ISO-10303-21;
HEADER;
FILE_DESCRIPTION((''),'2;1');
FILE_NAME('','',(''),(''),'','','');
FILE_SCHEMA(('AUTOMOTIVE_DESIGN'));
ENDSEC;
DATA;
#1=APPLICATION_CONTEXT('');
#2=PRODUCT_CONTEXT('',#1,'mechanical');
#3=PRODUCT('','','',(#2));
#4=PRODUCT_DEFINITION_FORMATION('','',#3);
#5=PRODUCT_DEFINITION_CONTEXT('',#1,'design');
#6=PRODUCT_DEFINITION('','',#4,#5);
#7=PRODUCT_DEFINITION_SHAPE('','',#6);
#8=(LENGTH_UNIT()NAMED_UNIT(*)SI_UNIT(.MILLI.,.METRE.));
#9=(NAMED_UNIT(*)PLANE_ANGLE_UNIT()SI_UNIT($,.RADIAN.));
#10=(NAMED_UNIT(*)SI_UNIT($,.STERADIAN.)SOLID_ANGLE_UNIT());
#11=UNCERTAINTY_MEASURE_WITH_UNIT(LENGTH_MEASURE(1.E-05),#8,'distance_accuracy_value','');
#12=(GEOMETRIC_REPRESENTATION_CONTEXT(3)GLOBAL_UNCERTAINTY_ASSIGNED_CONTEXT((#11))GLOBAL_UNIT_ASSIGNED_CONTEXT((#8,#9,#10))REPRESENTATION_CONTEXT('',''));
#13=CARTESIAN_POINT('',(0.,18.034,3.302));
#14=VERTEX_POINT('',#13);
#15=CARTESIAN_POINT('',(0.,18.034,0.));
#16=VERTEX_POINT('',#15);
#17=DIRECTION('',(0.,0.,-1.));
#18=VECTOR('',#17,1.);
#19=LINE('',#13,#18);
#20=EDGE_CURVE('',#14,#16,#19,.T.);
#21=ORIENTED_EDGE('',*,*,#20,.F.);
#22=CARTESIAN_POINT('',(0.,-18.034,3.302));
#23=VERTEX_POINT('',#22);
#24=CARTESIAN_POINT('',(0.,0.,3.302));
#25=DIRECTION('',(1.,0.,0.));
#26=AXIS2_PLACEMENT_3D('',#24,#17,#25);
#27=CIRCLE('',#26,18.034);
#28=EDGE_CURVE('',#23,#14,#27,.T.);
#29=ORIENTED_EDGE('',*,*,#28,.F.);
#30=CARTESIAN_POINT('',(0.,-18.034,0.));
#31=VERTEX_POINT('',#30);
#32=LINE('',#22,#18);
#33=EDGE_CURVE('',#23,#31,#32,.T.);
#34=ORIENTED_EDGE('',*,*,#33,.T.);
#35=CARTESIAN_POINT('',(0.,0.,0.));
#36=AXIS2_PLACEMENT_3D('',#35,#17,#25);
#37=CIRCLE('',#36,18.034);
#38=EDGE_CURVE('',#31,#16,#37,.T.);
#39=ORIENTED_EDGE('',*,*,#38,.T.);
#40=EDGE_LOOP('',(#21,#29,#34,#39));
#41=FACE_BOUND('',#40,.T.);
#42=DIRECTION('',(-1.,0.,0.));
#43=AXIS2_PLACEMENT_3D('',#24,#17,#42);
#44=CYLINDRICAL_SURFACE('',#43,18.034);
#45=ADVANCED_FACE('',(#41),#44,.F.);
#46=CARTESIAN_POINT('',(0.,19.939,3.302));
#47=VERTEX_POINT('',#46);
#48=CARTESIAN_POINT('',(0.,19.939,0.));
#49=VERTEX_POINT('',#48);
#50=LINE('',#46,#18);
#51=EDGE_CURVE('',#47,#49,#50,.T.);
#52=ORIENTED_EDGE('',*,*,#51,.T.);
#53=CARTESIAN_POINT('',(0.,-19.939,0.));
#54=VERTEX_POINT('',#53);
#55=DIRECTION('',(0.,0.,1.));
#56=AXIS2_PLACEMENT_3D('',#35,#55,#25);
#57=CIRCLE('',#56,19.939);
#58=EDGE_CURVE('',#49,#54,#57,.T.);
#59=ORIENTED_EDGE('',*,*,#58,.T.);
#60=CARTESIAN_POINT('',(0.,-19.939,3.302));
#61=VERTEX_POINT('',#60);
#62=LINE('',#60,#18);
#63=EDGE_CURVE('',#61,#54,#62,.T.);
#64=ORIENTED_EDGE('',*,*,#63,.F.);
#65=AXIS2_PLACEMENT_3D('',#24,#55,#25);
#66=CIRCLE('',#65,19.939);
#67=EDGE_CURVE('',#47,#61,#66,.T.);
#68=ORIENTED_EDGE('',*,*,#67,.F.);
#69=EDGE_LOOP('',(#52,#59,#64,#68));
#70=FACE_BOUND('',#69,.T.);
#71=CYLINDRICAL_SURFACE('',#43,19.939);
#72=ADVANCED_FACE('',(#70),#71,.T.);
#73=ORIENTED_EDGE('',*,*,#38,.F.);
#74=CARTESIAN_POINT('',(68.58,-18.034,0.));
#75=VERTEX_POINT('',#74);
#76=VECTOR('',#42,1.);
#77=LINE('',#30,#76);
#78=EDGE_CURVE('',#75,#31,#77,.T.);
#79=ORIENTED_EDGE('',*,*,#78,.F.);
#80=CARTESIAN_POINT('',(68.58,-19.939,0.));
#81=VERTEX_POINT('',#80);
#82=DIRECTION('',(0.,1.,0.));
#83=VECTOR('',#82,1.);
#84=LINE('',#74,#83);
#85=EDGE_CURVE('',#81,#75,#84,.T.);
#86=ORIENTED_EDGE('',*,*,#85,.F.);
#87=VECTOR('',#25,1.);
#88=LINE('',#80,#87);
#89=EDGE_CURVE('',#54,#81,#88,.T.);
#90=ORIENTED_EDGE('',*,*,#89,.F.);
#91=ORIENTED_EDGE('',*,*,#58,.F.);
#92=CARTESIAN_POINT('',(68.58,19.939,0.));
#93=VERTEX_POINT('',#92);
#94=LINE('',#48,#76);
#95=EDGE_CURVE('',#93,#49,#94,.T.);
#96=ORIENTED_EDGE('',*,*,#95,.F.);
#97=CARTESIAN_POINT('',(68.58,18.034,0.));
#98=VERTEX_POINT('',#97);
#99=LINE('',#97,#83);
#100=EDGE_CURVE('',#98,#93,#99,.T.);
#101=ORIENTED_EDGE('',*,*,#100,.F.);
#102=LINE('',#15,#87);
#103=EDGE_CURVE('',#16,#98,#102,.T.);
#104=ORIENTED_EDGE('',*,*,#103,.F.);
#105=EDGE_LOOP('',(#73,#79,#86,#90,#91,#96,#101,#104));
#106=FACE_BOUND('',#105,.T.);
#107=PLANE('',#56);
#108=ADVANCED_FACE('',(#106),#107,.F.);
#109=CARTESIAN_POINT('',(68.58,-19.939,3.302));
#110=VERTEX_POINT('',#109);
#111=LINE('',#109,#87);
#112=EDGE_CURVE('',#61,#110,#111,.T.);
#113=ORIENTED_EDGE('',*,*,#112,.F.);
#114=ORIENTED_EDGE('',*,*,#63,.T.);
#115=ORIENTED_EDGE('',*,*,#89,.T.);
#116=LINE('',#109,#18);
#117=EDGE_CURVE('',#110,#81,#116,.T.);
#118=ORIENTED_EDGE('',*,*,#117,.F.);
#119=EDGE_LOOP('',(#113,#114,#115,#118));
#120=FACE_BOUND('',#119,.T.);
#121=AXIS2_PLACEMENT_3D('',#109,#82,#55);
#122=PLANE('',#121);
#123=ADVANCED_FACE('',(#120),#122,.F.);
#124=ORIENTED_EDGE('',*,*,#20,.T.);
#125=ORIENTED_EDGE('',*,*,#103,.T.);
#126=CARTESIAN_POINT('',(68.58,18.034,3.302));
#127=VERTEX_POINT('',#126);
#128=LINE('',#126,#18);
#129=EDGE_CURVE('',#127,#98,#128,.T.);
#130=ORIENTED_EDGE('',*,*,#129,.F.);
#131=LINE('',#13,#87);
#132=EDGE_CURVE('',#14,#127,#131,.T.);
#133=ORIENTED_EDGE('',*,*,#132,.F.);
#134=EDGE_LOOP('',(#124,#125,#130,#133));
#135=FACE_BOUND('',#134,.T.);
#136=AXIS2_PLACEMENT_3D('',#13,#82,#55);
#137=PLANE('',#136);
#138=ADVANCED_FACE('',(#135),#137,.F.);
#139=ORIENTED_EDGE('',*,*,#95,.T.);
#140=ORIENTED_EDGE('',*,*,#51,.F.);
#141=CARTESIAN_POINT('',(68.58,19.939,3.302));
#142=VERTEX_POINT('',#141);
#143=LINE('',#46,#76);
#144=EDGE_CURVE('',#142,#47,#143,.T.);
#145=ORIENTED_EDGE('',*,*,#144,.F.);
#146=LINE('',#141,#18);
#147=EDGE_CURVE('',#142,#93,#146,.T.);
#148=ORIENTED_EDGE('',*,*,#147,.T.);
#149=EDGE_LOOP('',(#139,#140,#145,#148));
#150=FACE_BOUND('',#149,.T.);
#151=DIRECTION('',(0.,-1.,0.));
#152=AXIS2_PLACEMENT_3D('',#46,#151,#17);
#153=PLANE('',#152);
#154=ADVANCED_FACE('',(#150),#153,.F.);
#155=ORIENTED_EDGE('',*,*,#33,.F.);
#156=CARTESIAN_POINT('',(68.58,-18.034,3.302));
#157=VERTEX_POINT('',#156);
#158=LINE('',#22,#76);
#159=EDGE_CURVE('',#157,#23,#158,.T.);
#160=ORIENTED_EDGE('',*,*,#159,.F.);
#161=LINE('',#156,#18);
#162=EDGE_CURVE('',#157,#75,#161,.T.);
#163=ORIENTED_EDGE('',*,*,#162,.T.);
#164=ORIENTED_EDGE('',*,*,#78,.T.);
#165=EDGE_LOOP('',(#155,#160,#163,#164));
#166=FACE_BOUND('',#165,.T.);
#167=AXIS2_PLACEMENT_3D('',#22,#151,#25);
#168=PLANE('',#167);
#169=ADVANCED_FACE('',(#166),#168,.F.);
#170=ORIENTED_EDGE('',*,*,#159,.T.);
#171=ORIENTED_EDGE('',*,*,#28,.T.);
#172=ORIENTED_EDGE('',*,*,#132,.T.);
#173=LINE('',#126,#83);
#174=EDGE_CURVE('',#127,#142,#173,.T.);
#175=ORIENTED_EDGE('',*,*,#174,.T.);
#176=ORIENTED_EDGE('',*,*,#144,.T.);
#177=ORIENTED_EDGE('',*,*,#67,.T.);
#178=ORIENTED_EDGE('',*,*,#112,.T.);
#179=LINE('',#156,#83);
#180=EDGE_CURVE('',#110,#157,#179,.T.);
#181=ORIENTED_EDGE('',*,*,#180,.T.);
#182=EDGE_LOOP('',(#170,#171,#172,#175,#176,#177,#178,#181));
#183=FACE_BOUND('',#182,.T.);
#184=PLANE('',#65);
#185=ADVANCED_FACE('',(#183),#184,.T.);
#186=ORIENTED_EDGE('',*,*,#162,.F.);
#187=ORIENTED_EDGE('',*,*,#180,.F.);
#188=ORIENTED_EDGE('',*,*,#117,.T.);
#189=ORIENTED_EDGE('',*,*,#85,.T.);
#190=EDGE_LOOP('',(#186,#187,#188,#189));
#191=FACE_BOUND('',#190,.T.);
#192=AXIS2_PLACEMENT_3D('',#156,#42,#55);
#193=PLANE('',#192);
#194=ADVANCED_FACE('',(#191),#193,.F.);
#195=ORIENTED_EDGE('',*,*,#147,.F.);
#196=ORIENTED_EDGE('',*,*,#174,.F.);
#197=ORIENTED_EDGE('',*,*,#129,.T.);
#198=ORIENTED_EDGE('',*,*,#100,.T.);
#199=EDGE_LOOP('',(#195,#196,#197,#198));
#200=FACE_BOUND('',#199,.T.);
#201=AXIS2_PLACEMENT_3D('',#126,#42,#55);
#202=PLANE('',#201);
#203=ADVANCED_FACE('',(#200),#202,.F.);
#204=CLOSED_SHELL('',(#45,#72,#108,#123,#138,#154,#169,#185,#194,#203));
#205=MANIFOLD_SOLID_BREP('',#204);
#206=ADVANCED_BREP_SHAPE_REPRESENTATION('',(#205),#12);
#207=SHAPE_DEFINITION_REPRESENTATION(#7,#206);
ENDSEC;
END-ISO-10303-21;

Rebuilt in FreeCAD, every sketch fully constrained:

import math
import FreeCAD as App
import Part
import Sketcher

V = App.Vector
Q = App.Units.Quantity

doc = App.newDocument("Part")
params = doc.addObject("Spreadsheet::Sheet", "Params")
for row, (alias, value) in enumerate([
    ("sketch1_radius", "0.71 in"),
    ("sketch1_width", "2.7 in"),
    ("sketch1_radius2", "0.785 in"),
    ("pad1_length", "0.13 in"),
], start=1):
    params.set(f"A{row}", alias)
    params.set(f"B{row}", "=" + value)
    params.setAlias(f"B{row}", alias)

body = doc.addObject("PartDesign::Body", "Body")

# Sketch on XY plane
sketch1 = body.newObject("Sketcher::SketchObject", "Sketch")
sketch1.AttachmentSupport = (doc.getObject("XY_Plane"), [""])
sketch1.MapMode = "FlatFace"
sketch1.addGeometry([
    Part.LineSegment(V(68.6, 19.9, 0), V(0, 19.9, 0)),  # 0
    Part.ArcOfCircle(Part.Circle(V(0, 0, 0), V(0, 0, 1), 19.9), math.radians(90), math.radians(270)),  # 1
    Part.LineSegment(V(0, -19.9, 0), V(68.6, -19.9, 0)),  # 2
    Part.LineSegment(V(68.6, -19.9, 0), V(68.6, -18, 0)),  # 3
    Part.LineSegment(V(68.6, -18, 0), V(0, -18, 0)),  # 4
    Part.ArcOfCircle(Part.Circle(V(0, 0, 0), V(0, 0, 1), 18), math.radians(90), math.radians(270)),  # 5
    Part.LineSegment(V(0, 18, 0), V(68.6, 18, 0)),  # 6
    Part.LineSegment(V(68.6, 18, 0), V(68.6, 19.9, 0)),  # 7
], False)
sketch1.addConstraint([
    Sketcher.Constraint("Tangent", 0, 2, 1, 1),
    Sketcher.Constraint("Tangent", 1, 2, 2, 1),
    Sketcher.Constraint("Coincident", 2, 2, 3, 1),
    Sketcher.Constraint("Coincident", 3, 2, 4, 1),
    Sketcher.Constraint("Tangent", 4, 2, 5, 2),
    Sketcher.Constraint("Tangent", 5, 1, 6, 1),
    Sketcher.Constraint("Coincident", 6, 2, 7, 1),
    Sketcher.Constraint("Coincident", 7, 2, 0, 1),
    Sketcher.Constraint("Horizontal", 0),
    Sketcher.Constraint("Horizontal", 2),
    Sketcher.Constraint("Vertical", 3),
    Sketcher.Constraint("Horizontal", 4),
    Sketcher.Constraint("Horizontal", 6),
    Sketcher.Constraint("Vertical", 7),
    Sketcher.Constraint("Coincident", 1, 3, -1, 1),
    Sketcher.Constraint("Coincident", 5, 3, -1, 1),
    Sketcher.Constraint("Vertical", 3, 2, 6, 2),
    Sketcher.Constraint("Radius", 5, Q("0.71 in")),
    Sketcher.Constraint("DistanceX", 0, 2, 0, 1, Q("2.7 in")),
    Sketcher.Constraint("Radius", 1, Q("0.785 in")),
])
sketch1.setExpression("Constraints[17]", "Params.sketch1_radius")
sketch1.setExpression("Constraints[18]", "Params.sketch1_width")
sketch1.setExpression("Constraints[19]", "Params.sketch1_radius2")
pad1 = body.newObject("PartDesign::Pad", "Pad")
pad1.Profile = sketch1
pad1.setExpression("Length", "Params.pad1_length")

doc.recompute()
